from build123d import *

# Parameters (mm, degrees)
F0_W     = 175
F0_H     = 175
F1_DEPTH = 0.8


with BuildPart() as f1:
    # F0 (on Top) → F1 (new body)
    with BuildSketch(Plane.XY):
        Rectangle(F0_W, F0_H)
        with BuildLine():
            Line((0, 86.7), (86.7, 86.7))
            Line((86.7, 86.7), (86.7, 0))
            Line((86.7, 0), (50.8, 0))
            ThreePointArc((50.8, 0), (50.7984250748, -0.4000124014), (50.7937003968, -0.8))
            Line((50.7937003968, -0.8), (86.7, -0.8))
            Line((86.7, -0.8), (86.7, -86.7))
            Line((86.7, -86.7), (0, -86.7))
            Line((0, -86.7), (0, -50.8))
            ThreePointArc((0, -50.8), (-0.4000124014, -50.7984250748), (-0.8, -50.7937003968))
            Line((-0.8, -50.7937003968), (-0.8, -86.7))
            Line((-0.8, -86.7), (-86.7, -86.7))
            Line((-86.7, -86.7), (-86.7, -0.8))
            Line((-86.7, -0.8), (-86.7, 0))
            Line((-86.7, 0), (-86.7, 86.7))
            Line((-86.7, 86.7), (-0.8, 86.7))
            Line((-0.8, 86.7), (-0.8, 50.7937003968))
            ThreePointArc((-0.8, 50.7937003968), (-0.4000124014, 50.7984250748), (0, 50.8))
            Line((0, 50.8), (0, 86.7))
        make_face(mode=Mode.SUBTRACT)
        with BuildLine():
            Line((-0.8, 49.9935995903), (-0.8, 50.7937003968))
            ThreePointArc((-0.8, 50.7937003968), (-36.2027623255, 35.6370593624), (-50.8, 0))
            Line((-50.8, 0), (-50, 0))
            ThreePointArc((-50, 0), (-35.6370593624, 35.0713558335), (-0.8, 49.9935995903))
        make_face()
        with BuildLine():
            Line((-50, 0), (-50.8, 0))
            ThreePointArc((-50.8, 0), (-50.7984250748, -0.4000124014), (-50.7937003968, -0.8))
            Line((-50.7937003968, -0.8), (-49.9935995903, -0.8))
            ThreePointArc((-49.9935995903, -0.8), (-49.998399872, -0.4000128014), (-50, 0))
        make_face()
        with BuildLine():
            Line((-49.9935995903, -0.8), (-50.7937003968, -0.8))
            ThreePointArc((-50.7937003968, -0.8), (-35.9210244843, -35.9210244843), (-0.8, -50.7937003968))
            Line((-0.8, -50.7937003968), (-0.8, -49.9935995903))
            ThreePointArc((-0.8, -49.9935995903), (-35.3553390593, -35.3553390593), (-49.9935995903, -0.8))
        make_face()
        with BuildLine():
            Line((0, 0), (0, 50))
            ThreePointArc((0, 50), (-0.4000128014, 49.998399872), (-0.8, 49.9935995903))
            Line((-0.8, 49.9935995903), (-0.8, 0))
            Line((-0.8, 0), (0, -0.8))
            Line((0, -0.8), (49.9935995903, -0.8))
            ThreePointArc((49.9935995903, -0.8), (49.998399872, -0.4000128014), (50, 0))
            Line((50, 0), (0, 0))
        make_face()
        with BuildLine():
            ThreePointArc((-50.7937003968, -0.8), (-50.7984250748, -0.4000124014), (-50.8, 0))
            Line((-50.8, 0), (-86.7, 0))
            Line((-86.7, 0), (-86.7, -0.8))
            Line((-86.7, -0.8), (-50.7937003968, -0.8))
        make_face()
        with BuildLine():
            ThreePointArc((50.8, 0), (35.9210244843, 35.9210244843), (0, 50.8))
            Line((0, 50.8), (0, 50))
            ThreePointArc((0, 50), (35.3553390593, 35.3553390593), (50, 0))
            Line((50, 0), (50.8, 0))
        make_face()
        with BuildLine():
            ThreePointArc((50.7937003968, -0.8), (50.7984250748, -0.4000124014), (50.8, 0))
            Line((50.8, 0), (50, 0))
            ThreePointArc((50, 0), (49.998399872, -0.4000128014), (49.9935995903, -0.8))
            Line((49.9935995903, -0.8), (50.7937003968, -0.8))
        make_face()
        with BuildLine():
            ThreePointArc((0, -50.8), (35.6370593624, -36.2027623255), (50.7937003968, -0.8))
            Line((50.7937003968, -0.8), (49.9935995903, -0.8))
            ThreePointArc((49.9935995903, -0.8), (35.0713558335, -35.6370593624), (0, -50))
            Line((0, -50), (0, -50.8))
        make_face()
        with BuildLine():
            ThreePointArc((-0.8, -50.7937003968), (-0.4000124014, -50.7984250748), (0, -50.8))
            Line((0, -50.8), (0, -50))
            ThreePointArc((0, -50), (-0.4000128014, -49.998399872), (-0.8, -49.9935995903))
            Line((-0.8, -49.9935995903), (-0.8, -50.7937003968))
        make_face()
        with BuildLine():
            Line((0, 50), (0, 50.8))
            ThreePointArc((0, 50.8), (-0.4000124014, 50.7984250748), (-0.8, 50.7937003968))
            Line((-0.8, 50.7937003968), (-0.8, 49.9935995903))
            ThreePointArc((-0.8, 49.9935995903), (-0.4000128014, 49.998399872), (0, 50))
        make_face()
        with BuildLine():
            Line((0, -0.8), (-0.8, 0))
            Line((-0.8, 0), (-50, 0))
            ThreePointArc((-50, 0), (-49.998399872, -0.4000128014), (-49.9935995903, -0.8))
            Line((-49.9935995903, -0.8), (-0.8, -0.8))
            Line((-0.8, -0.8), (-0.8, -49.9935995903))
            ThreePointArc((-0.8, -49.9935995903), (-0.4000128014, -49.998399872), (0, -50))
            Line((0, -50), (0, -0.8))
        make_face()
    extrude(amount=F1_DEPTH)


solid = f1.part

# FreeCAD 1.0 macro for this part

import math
import FreeCAD as App
import Part
import Sketcher
from FreeCAD import Vector
Q = App.Units.Quantity

doc = App.newDocument("Part")
body = doc.addObject("PartDesign::Body", "Body")

sketch1 = body.newObject("Sketcher::SketchObject", "Sketch")
sketch1.AttachmentSupport = (doc.getObject("XY_Plane"), [""])
sketch1.MapMode = "FlatFace"
sketch1.addGeometry(Part.LineSegment(Vector(-88, 88, 0), Vector(-88, -88, 0)), False)
sketch1.addGeometry(Part.LineSegment(Vector(-88, -88, 0), Vector(88, -88, 0)), False)
sketch1.addGeometry(Part.LineSegment(Vector(88, -88, 0), Vector(88, 88, 0)), False)
sketch1.addGeometry(Part.LineSegment(Vector(88, 88, 0), Vector(-88, 88, 0)), False)
sketch1.addGeometry(Part.ArcOfCircle(Part.Circle(Vector(0, 0, 0), Vector(0, 0, 1), 51), math.radians(-179), math.radians(-91)), False)
sketch1.addGeometry(Part.LineSegment(Vector(-1, -51, 0), Vector(-1, -87, 0)), False)
sketch1.addGeometry(Part.LineSegment(Vector(-1, -87, 0), Vector(-87, -87, 0)), False)
sketch1.addGeometry(Part.LineSegment(Vector(-87, -87, 0), Vector(-87, -1, 0)), False)
sketch1.addGeometry(Part.LineSegment(Vector(-87, -1, 0), Vector(-51, -1, 0)), False)
sketch1.addGeometry(Part.ArcOfCircle(Part.Circle(Vector(0, 0, 0), Vector(0, 0, 1), 50), math.radians(91), math.radians(180)), False)
sketch1.addGeometry(Part.LineSegment(Vector(-1, 50, 0), Vector(-1, 0, 0)), False)
sketch1.addGeometry(Part.LineSegment(Vector(-1, 0, 0), Vector(-50, 0, 0)), False)
sketch1.addGeometry(Part.LineSegment(Vector(0, -1, 0), Vector(50, -1, 0)), False)
sketch1.addGeometry(Part.ArcOfCircle(Part.Circle(Vector(0, 0, 0), Vector(0, 0, 1), 50), math.radians(-90), math.radians(-1)), False)
sketch1.addGeometry(Part.LineSegment(Vector(0, -50, 0), Vector(0, -1, 0)), False)
sketch1.addGeometry(Part.ArcOfCircle(Part.Circle(Vector(0, 0, 0), Vector(0, 0, 1), 50), math.radians(-179), math.radians(-91)), False)
sketch1.addGeometry(Part.LineSegment(Vector(-50, -1, 0), Vector(-1, -1, 0)), False)
sketch1.addGeometry(Part.LineSegment(Vector(-1, -1, 0), Vector(-1, -50, 0)), False)
sketch1.addGeometry(Part.LineSegment(Vector(0, -87, 0), Vector(0, -51, 0)), False)
sketch1.addGeometry(Part.ArcOfCircle(Part.Circle(Vector(0, 0, 0), Vector(0, 0, 1), 51), math.radians(-90), math.radians(-1)), False)
sketch1.addGeometry(Part.LineSegment(Vector(51, -1, 0), Vector(87, -1, 0)), False)
sketch1.addGeometry(Part.LineSegment(Vector(87, -1, 0), Vector(87, -87, 0)), False)
sketch1.addGeometry(Part.LineSegment(Vector(87, -87, 0), Vector(0, -87, 0)), False)
sketch1.addGeometry(Part.LineSegment(Vector(-1, 87, 0), Vector(-1, 51, 0)), False)
sketch1.addGeometry(Part.ArcOfCircle(Part.Circle(Vector(0, 0, 0), Vector(0, 0, 1), 51), math.radians(91), math.radians(180)), False)
sketch1.addGeometry(Part.LineSegment(Vector(-51, 0, 0), Vector(-87, 0, 0)), False)
sketch1.addGeometry(Part.LineSegment(Vector(-87, 0, 0), Vector(-87, 87, 0)), False)
sketch1.addGeometry(Part.LineSegment(Vector(-87, 87, 0), Vector(-1, 87, 0)), False)
sketch1.addGeometry(Part.LineSegment(Vector(0, 0, 0), Vector(0, 50, 0)), False)
sketch1.addGeometry(Part.ArcOfCircle(Part.Circle(Vector(0, 0, 0), Vector(0, 0, 1), 50), math.radians(0), math.radians(90)), False)
sketch1.addGeometry(Part.LineSegment(Vector(50, 0, 0), Vector(0, 0, 0)), False)
sketch1.addGeometry(Part.ArcOfCircle(Part.Circle(Vector(0, 0, 0), Vector(0, 0, 1), 51), math.radians(0), math.radians(90)), False)
sketch1.addGeometry(Part.LineSegment(Vector(0, 51, 0), Vector(0, 87, 0)), False)
sketch1.addGeometry(Part.LineSegment(Vector(0, 87, 0), Vector(87, 87, 0)), False)
sketch1.addGeometry(Part.LineSegment(Vector(87, 87, 0), Vector(87, 0, 0)), False)
sketch1.addGeometry(Part.LineSegment(Vector(87, 0, 0), Vector(51, 0, 0)), False)
sketch1.addConstraint(Sketcher.Constraint("Coincident", 0, 2, 1, 1))
sketch1.addConstraint(Sketcher.Constraint("Coincident", 1, 2, 2, 1))
sketch1.addConstraint(Sketcher.Constraint("Coincident", 2, 2, 3, 1))
sketch1.addConstraint(Sketcher.Constraint("Coincident", 3, 2, 0, 1))
sketch1.addConstraint(Sketcher.Constraint("Coincident", 4, 2, 5, 1))
sketch1.addConstraint(Sketcher.Constraint("Coincident", 5, 2, 6, 1))
sketch1.addConstraint(Sketcher.Constraint("Coincident", 6, 2, 7, 1))
sketch1.addConstraint(Sketcher.Constraint("Coincident", 7, 2, 8, 1))
sketch1.addConstraint(Sketcher.Constraint("Coincident", 8, 2, 4, 1))
sketch1.addConstraint(Sketcher.Constraint("Coincident", 9, 1, 10, 1))
sketch1.addConstraint(Sketcher.Constraint("Coincident", 10, 2, 11, 1))
sketch1.addConstraint(Sketcher.Constraint("Coincident", 11, 2, 9, 2))
sketch1.addConstraint(Sketcher.Constraint("Coincident", 12, 2, 13, 2))
sketch1.addConstraint(Sketcher.Constraint("Coincident", 13, 1, 14, 1))
sketch1.addConstraint(Sketcher.Constraint("Coincident", 14, 2, 12, 1))
sketch1.addConstraint(Sketcher.Constraint("Coincident", 15, 1, 16, 1))
sketch1.addConstraint(Sketcher.Constraint("Coincident", 16, 2, 17, 1))
sketch1.addConstraint(Sketcher.Constraint("Coincident", 17, 2, 15, 2))
sketch1.addConstraint(Sketcher.Constraint("Coincident", 18, 2, 19, 1))
sketch1.addConstraint(Sketcher.Constraint("Coincident", 19, 2, 20, 1))
sketch1.addConstraint(Sketcher.Constraint("Coincident", 20, 2, 21, 1))
sketch1.addConstraint(Sketcher.Constraint("Coincident", 21, 2, 22, 1))
sketch1.addConstraint(Sketcher.Constraint("Coincident", 22, 2, 18, 1))
sketch1.addConstraint(Sketcher.Constraint("Coincident", 23, 2, 24, 1))
sketch1.addConstraint(Sketcher.Constraint("Coincident", 24, 2, 25, 1))
sketch1.addConstraint(Sketcher.Constraint("Coincident", 25, 2, 26, 1))
sketch1.addConstraint(Sketcher.Constraint("Coincident", 26, 2, 27, 1))
sketch1.addConstraint(Sketcher.Constraint("Coincident", 27, 2, 23, 1))
sketch1.addConstraint(Sketcher.Constraint("Coincident", 28, 2, 29, 2))
sketch1.addConstraint(Sketcher.Constraint("Coincident", 29, 1, 30, 1))
sketch1.addConstraint(Sketcher.Constraint("Coincident", 30, 2, 28, 1))
sketch1.addConstraint(Sketcher.Constraint("Coincident", 31, 2, 32, 1))
sketch1.addConstraint(Sketcher.Constraint("Coincident", 32, 2, 33, 1))
sketch1.addConstraint(Sketcher.Constraint("Coincident", 33, 2, 34, 1))
sketch1.addConstraint(Sketcher.Constraint("Coincident", 34, 2, 35, 1))
sketch1.addConstraint(Sketcher.Constraint("Coincident", 35, 2, 31, 1))
sketch1.addConstraint(Sketcher.Constraint("Vertical", 0))
sketch1.addConstraint(Sketcher.Constraint("Horizontal", 1))
sketch1.addConstraint(Sketcher.Constraint("Vertical", 2))
sketch1.addConstraint(Sketcher.Constraint("Horizontal", 3))
sketch1.addConstraint(Sketcher.Constraint("Vertical", 5))
sketch1.addConstraint(Sketcher.Constraint("Horizontal", 6))
sketch1.addConstraint(Sketcher.Constraint("Vertical", 7))
sketch1.addConstraint(Sketcher.Constraint("Horizontal", 8))
sketch1.addConstraint(Sketcher.Constraint("Vertical", 10))
sketch1.addConstraint(Sketcher.Constraint("Horizontal", 11))
sketch1.addConstraint(Sketcher.Constraint("Horizontal", 12))
sketch1.addConstraint(Sketcher.Constraint("Vertical", 14))
sketch1.addConstraint(Sketcher.Constraint("Horizontal", 16))
sketch1.addConstraint(Sketcher.Constraint("Vertical", 17))
sketch1.addConstraint(Sketcher.Constraint("Vertical", 18))
sketch1.addConstraint(Sketcher.Constraint("Horizontal", 20))
sketch1.addConstraint(Sketcher.Constraint("Vertical", 21))
sketch1.addConstraint(Sketcher.Constraint("Horizontal", 22))
sketch1.addConstraint(Sketcher.Constraint("Vertical", 23))
sketch1.addConstraint(Sketcher.Constraint("Horizontal", 25))
sketch1.addConstraint(Sketcher.Constraint("Vertical", 26))
sketch1.addConstraint(Sketcher.Constraint("Horizontal", 27))
sketch1.addConstraint(Sketcher.Constraint("Vertical", 28))
sketch1.addConstraint(Sketcher.Constraint("Horizontal", 30))
sketch1.addConstraint(Sketcher.Constraint("Vertical", 32))
sketch1.addConstraint(Sketcher.Constraint("Horizontal", 33))
sketch1.addConstraint(Sketcher.Constraint("Vertical", 34))
sketch1.addConstraint(Sketcher.Constraint("Horizontal", 35))
sketch1.addConstraint(Sketcher.Constraint("Coincident", 4, 3, -1, 1))
sketch1.addConstraint(Sketcher.Constraint("Coincident", 9, 3, -1, 1))
sketch1.addConstraint(Sketcher.Constraint("Coincident", 13, 3, -1, 1))
sketch1.addConstraint(Sketcher.Constraint("Coincident", 15, 3, -1, 1))
sketch1.addConstraint(Sketcher.Constraint("Coincident", 19, 3, -1, 1))
sketch1.addConstraint(Sketcher.Constraint("Coincident", 24, 3, -1, 1))
sketch1.addConstraint(Sketcher.Constraint("Coincident", 29, 3, -1, 1))
sketch1.addConstraint(Sketcher.Constraint("Coincident", 31, 3, -1, 1))
sketch1.addConstraint(Sketcher.Constraint("Coincident", 30, 2, -1, 1))
sketch1.addConstraint(Sketcher.Constraint("Equal", 9, 13))
sketch1.addConstraint(Sketcher.Constraint("Equal", 13, 15))
sketch1.addConstraint(Sketcher.Constraint("Equal", 4, 19))
sketch1.addConstraint(Sketcher.Constraint("Equal", 19, 24))
sketch1.addConstraint(Sketcher.Constraint("Equal", 15, 29))
sketch1.addConstraint(Sketcher.Constraint("Equal", 24, 31))
sketch1.addConstraint(Sketcher.Constraint("Symmetric", 0, 2, 2, 2, -1, 1))
sketch1.addConstraint(Sketcher.Constraint("Symmetric", 21, 2, 26, 2, -1, 1))
sketch1.addConstraint(Sketcher.Constraint("Symmetric", 22, 2, 32, 2, -1, 1))
sketch1.addConstraint(Sketcher.Constraint("Symmetric", 6, 2, 33, 2, -1, 1))
sketch1.addConstraint(Sketcher.Constraint("Symmetric", 25, 2, 34, 2, -1, 1))
sketch1.addConstraint(Sketcher.Constraint("PointOnObject", 10, 2, -1))
sketch1.addConstraint(Sketcher.Constraint("PointOnObject", 13, 1, -2))
sketch1.addConstraint(Sketcher.Constraint("PointOnObject", 18, 2, -2))
sketch1.addConstraint(Sketcher.Constraint("PointOnObject", 24, 2, -1))
sketch1.addConstraint(Sketcher.Constraint("Horizontal", 8, 2, 12, 2))
sketch1.addConstraint(Sketcher.Constraint("Horizontal", 14, 2, 15, 1))
sketch1.addConstraint(Sketcher.Constraint("Horizontal", 16, 2, 19, 2))
sketch1.addConstraint(Sketcher.Constraint("Vertical", 5, 2, 9, 1))
sketch1.addConstraint(Sketcher.Constraint("Vertical", 10, 2, 16, 2))
sketch1.addConstraint(Sketcher.Constraint("Vertical", 17, 2, 23, 2))
sketch1.addConstraint(Sketcher.Constraint("Equal", 3, 0))
sketch1.addConstraint(Sketcher.Constraint("Equal", 20, 5))
sketch1.addConstraint(Sketcher.Constraint("Equal", 27, 7))
sketch1.addConstraint(Sketcher.Constraint("Radius", 9, Q("50 mm")))
sketch1.addConstraint(Sketcher.Constraint("Radius", 4, Q("50.8 mm")))
sketch1.addConstraint(Sketcher.Constraint("DistanceX", 1, 1, 1, 2, Q("175 mm")))
sketch1.addConstraint(Sketcher.Constraint("DistanceX", 6, 2, 6, 1, Q("85.9 mm")))
sketch1.addConstraint(Sketcher.Constraint("DistanceX", 11, 2, 11, 1, Q("49.2 mm")))
pad1 = body.newObject("PartDesign::Pad", "Pad")
pad1.Profile = sketch1
pad1.Length = 0.8

doc.recompute()
